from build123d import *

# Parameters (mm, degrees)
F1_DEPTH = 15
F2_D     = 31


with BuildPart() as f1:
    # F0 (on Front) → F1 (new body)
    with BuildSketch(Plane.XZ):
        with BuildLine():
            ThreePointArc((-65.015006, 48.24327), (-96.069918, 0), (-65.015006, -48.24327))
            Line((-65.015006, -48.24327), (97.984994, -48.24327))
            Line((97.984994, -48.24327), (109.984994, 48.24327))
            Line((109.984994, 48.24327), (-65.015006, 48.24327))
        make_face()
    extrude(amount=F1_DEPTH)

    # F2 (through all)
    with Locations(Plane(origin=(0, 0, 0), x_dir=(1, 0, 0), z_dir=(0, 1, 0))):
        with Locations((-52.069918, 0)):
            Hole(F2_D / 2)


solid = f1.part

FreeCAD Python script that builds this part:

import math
import FreeCAD as App
import Part
import Sketcher

doc = App.newDocument("Part")
params = doc.addObject("Spreadsheet::Sheet", "Params")
for row, (alias, value) in enumerate([
    ("sketch1_radius", "53 mm"),
    ("sketch1_width", "163 mm"),
    ("sketch1_width2", "175 mm"),
    ("pad1_length", "15 mm"),
    ("sketch2_diameter", "31 mm"),
    ("hole_diameter", "31 mm"),
], start=1):
    params.set(f"A{row}", alias)
    params.set(f"B{row}", "=" + value)
    params.setAlias(f"B{row}", alias)

body = doc.addObject("PartDesign::Body", "Body")

sketch1 = doc.addObject("Sketcher::SketchObject", "Sketch")
body.addObject(sketch1)
sketch1.AttachmentSupport = (doc.XZ_Plane, [""])
sketch1.MapMode = "FlatFace"
sketch1.addGeometry(Part.ArcOfCircle(Part.Circle(App.Vector(-43, 0, 0), App.Vector(0, 0, 1), 53), math.radians(114), math.radians(246)), False)
sketch1.addGeometry(Part.LineSegment(App.Vector(-65, -48, 0), App.Vector(98, -48, 0)), False)
sketch1.addGeometry(Part.LineSegment(App.Vector(98, -48, 0), App.Vector(110, 48, 0)), False)
sketch1.addGeometry(Part.LineSegment(App.Vector(110, 48, 0), App.Vector(-65, 48, 0)), False)
sketch1.addConstraint(Sketcher.Constraint("Coincident", 0, 2, 1, 1))
sketch1.addConstraint(Sketcher.Constraint("Coincident", 1, 2, 2, 1))
sketch1.addConstraint(Sketcher.Constraint("Coincident", 2, 2, 3, 1))
sketch1.addConstraint(Sketcher.Constraint("Coincident", 3, 2, 0, 1))
sketch1.addConstraint(Sketcher.Constraint("Horizontal", 1))
sketch1.addConstraint(Sketcher.Constraint("Horizontal", 3))
sketch1.addConstraint(Sketcher.Constraint("Symmetric", 0, 2, 3, 2, -1))
sketch1.addConstraint(Sketcher.Constraint("Radius", 0, 53.0))
sketch1.addConstraint(Sketcher.Constraint("DistanceX", 1, 1, 1, 2, 163.0))
sketch1.addConstraint(Sketcher.Constraint("DistanceX", 3, 2, 3, 1, 175.0))
sketch1.addConstraint(Sketcher.Constraint("DistanceX", 0, 3, -1, 1, 43.069918))
sketch1.addConstraint(Sketcher.Constraint("DistanceY", 0, 2, -1, 1, 48.24327))
sketch1.setExpression("Constraints[7]", "Params.sketch1_radius")
sketch1.setExpression("Constraints[8]", "Params.sketch1_width")
sketch1.setExpression("Constraints[9]", "Params.sketch1_width2")
pad1 = doc.addObject("PartDesign::Pad", "Pad")
body.addObject(pad1)
pad1.Profile = sketch1
pad1.setExpression("Length", "Params.pad1_length")

sketch2 = doc.addObject("Sketcher::SketchObject", "Sketch001")
body.addObject(sketch2)
sketch2.AttachmentSupport = (doc.XZ_Plane, [""])
sketch2.MapMode = "FlatFace"
sketch2.addGeometry(Part.Circle(App.Vector(-52, 0, 0), App.Vector(0, 0, 1), 16), False)
sketch2.addConstraint(Sketcher.Constraint("PointOnObject", 0, 3, -1))
sketch2.addConstraint(Sketcher.Constraint("Diameter", 0, 31.0))
sketch2.addConstraint(Sketcher.Constraint("DistanceX", 0, 3, -1, 1, 52.069918))
sketch2.setExpression("Constraints[1]", "Params.sketch2_diameter")
doc.recompute()
hole = doc.addObject("PartDesign::Hole", "Hole")
body.addObject(hole)
hole.Profile = sketch2
hole.ThreadType = "None"
hole.setExpression("Diameter", "Params.hole_diameter")
hole.DepthType = "ThroughAll"
hole.Reversed = True

doc.recompute()
